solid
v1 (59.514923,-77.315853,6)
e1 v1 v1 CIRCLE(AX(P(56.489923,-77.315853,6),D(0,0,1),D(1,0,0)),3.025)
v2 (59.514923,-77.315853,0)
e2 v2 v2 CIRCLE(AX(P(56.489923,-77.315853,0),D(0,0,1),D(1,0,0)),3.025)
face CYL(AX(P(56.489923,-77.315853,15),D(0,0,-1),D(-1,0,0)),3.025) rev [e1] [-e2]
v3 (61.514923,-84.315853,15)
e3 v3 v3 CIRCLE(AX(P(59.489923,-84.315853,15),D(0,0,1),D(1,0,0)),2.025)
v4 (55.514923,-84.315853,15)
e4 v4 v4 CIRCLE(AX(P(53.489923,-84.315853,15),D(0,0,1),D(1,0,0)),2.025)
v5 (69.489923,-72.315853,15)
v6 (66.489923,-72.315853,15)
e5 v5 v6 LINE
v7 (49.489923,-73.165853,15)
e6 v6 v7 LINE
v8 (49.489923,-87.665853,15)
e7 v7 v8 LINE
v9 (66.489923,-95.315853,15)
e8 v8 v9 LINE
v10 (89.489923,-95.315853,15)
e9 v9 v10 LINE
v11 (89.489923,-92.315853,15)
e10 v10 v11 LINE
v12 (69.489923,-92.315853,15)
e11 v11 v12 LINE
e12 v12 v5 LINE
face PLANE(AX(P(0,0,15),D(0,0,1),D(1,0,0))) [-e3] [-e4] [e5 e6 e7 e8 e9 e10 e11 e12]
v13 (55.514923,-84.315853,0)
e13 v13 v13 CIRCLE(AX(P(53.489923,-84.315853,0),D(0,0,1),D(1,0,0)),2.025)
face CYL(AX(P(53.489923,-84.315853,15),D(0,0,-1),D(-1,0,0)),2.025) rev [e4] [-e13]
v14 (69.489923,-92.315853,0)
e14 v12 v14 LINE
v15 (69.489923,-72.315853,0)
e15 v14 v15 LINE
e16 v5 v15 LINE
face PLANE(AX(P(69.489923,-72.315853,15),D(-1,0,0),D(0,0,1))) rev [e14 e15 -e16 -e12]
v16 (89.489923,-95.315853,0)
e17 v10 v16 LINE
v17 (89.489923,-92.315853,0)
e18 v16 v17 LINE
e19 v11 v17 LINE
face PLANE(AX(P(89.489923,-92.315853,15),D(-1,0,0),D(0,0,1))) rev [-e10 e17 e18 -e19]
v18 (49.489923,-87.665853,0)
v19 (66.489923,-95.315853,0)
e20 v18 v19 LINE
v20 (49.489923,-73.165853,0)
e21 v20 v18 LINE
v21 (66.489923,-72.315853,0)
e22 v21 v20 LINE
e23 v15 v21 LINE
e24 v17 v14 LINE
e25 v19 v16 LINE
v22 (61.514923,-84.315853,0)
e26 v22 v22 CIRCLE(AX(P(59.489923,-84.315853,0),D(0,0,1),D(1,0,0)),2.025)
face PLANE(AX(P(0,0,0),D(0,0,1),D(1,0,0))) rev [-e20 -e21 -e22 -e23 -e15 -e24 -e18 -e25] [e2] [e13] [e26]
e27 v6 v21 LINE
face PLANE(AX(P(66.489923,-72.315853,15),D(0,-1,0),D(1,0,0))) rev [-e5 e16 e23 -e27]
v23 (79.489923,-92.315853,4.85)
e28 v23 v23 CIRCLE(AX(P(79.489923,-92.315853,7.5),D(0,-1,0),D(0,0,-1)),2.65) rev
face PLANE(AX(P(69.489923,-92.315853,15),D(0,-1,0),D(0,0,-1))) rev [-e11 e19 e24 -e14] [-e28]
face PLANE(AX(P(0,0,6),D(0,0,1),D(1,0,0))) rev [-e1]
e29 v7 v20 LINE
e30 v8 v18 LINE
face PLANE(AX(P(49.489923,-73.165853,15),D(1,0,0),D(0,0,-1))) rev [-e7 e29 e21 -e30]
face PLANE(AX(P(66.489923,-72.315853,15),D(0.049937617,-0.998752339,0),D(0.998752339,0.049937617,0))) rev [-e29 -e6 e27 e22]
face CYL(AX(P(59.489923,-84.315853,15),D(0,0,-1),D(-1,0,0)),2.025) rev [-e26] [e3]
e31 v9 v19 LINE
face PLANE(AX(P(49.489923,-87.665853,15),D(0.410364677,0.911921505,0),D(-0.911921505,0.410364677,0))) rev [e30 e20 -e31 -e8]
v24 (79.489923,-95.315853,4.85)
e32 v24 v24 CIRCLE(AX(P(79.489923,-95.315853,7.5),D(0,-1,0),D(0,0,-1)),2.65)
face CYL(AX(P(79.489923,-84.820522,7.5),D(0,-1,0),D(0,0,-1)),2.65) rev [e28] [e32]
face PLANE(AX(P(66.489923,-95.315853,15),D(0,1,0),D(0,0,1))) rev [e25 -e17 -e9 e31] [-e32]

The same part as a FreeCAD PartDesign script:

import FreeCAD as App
import Part
import Sketcher
from FreeCAD import Vector


def add_polygon(sketch, points):
    """Adds a closed chain of lines whose ends are joined by coincident constraints."""
    first, n = sketch.GeometryCount, len(points)
    for a, b in zip(points, points[1:] + points[:1]):
        sketch.addGeometry(Part.LineSegment(App.Vector(*a, 0), App.Vector(*b, 0)), False)
    for i in range(n):
        sketch.addConstraint(Sketcher.Constraint("Coincident", first + i, 2, first + (i + 1) % n, 1))

doc = App.newDocument("Part")
body = doc.addObject("PartDesign::Body", "Body")

# Sketch on XY plane
sketch1 = body.newObject("Sketcher::SketchObject", "Sketch")
sketch1.AttachmentSupport = (doc.getObject("XY_Plane"), [""])
sketch1.MapMode = "FlatFace"
add_polygon(sketch1, [(69.5, -72.3), (66.5, -72.3), (49.5, -73.2), (49.5, -87.7), (66.5, -95.3), (89.5, -95.3), (89.5, -92.3), (69.5, -92.3)])  # lines 0-7
sketch1.addGeometry(Part.Circle(Vector(59.5, -84.3, 0), Vector(0, 0, 1), 2), False)  # 8
sketch1.addGeometry(Part.Circle(Vector(53.5, -84.3, 0), Vector(0, 0, 1), 2), False)  # 9
sketch1.addGeometry(Part.Circle(Vector(56.5, -77.3, 0), Vector(0, 0, 1), 3), False)  # 10
sketch1.addConstraint(Sketcher.Constraint("Horizontal", 0))
sketch1.addConstraint(Sketcher.Constraint("Vertical", 2))
sketch1.addConstraint(Sketcher.Constraint("Horizontal", 4))
sketch1.addConstraint(Sketcher.Constraint("Vertical", 5))
sketch1.addConstraint(Sketcher.Constraint("Horizontal", 6))
sketch1.addConstraint(Sketcher.Constraint("Vertical", 7))
sketch1.addConstraint(Sketcher.Constraint("Equal", 8, 9))
sketch1.addConstraint(Sketcher.Constraint("Horizontal", 8, 3, 9, 3))
sketch1.addConstraint(Sketcher.Constraint("Vertical", 0, 2, 3, 2))
sketch1.addConstraint(Sketcher.Constraint("Equal", 0, 5))
sketch1.addConstraint(Sketcher.Constraint("Equal", 6, 7))
sketch1.addConstraint(Sketcher.Constraint("Diameter", 8, 4.05))
sketch1.addConstraint(Sketcher.Constraint("Diameter", 10, 6.05))
sketch1.addConstraint(Sketcher.Constraint("DistanceX", 0, 2, 0, 1, 3.0))
sketch1.addConstraint(Sketcher.Constraint("DistanceX", 4, 1, 4, 2, 23.0))
sketch1.addConstraint(Sketcher.Constraint("DistanceY", 2, 2, 2, 1, 14.5))
sketch1.addConstraint(Sketcher.Constraint("DistanceX", 9, 3, 8, 3, 6.0))
sketch1.addConstraint(Sketcher.Constraint("DistanceX", 10, 3, 8, 3, 3.0))
sketch1.addConstraint(Sketcher.Constraint("DistanceY", 8, 3, 10, 3, 7.0))
sketch1.addConstraint(Sketcher.Constraint("DistanceX", 10, 3, 0, 2, 10.0))
sketch1.addConstraint(Sketcher.Constraint("DistanceY", 10, 3, 0, 2, 5.0))
sketch1.addConstraint(Sketcher.Constraint("DistanceX", 1, 2, 10, 3, 7.0))
sketch1.addConstraint(Sketcher.Constraint("DistanceY", 10, 3, 1, 2, 4.15))
sketch1.addConstraint(Sketcher.Constraint("DistanceX", -1, 1, 8, 3, 59.489923))
sketch1.addConstraint(Sketcher.Constraint("DistanceY", 8, 3, -1, 1, 84.315853))
pad1 = body.newObject("PartDesign::Pad", "Pad")
pad1.Profile = sketch1
pad1.Length = 15

# Sketch on XY plane
sketch2 = body.newObject("Sketcher::SketchObject", "Sketch001")
sketch2.AttachmentSupport = (doc.getObject("XY_Plane"), [""])
sketch2.MapMode = "FlatFace"
sketch2.AttachmentOffset = App.Placement(Vector(0, 0, 6), App.Rotation())
sketch2.addGeometry(Part.Circle(Vector(56.5, -77.3, 0), Vector(0, 0, 1), 3), False)
sketch2.addConstraint(Sketcher.Constraint("Diameter", 0, 6.05))
sketch2.addConstraint(Sketcher.Constraint("DistanceX", -1, 1, 0, 3, 56.489923))
sketch2.addConstraint(Sketcher.Constraint("DistanceY", 0, 3, -1, 1, 77.315853))
pad2 = body.newObject("PartDesign::Pad", "Pad001")
pad2.Profile = sketch2
pad2.Length = 9

# Sketch on XZ plane
sketch3 = body.newObject("Sketcher::SketchObject", "Sketch002")
sketch3.AttachmentSupport = (doc.getObject("XZ_Plane"), [""])
sketch3.MapMode = "FlatFace"
sketch3.AttachmentOffset = App.Placement(Vector(0, 0, 95.315853), App.Rotation())
sketch3.addGeometry(Part.Circle(Vector(79.5, 7.5, 0), Vector(0, 0, 1), 2.6), False)
sketch3.addConstraint(Sketcher.Constraint("Diameter", 0, 5.3))
sketch3.addConstraint(Sketcher.Constraint("DistanceY", -1, 1, 0, 3, 7.5))
sketch3.addConstraint(Sketcher.Constraint("DistanceX", -1, 1, 0, 3, 79.489923))
pocket1 = body.newObject("PartDesign::Pocket", "Pocket")
pocket1.Profile = sketch3
pocket1.Length = 3

doc.recompute()
